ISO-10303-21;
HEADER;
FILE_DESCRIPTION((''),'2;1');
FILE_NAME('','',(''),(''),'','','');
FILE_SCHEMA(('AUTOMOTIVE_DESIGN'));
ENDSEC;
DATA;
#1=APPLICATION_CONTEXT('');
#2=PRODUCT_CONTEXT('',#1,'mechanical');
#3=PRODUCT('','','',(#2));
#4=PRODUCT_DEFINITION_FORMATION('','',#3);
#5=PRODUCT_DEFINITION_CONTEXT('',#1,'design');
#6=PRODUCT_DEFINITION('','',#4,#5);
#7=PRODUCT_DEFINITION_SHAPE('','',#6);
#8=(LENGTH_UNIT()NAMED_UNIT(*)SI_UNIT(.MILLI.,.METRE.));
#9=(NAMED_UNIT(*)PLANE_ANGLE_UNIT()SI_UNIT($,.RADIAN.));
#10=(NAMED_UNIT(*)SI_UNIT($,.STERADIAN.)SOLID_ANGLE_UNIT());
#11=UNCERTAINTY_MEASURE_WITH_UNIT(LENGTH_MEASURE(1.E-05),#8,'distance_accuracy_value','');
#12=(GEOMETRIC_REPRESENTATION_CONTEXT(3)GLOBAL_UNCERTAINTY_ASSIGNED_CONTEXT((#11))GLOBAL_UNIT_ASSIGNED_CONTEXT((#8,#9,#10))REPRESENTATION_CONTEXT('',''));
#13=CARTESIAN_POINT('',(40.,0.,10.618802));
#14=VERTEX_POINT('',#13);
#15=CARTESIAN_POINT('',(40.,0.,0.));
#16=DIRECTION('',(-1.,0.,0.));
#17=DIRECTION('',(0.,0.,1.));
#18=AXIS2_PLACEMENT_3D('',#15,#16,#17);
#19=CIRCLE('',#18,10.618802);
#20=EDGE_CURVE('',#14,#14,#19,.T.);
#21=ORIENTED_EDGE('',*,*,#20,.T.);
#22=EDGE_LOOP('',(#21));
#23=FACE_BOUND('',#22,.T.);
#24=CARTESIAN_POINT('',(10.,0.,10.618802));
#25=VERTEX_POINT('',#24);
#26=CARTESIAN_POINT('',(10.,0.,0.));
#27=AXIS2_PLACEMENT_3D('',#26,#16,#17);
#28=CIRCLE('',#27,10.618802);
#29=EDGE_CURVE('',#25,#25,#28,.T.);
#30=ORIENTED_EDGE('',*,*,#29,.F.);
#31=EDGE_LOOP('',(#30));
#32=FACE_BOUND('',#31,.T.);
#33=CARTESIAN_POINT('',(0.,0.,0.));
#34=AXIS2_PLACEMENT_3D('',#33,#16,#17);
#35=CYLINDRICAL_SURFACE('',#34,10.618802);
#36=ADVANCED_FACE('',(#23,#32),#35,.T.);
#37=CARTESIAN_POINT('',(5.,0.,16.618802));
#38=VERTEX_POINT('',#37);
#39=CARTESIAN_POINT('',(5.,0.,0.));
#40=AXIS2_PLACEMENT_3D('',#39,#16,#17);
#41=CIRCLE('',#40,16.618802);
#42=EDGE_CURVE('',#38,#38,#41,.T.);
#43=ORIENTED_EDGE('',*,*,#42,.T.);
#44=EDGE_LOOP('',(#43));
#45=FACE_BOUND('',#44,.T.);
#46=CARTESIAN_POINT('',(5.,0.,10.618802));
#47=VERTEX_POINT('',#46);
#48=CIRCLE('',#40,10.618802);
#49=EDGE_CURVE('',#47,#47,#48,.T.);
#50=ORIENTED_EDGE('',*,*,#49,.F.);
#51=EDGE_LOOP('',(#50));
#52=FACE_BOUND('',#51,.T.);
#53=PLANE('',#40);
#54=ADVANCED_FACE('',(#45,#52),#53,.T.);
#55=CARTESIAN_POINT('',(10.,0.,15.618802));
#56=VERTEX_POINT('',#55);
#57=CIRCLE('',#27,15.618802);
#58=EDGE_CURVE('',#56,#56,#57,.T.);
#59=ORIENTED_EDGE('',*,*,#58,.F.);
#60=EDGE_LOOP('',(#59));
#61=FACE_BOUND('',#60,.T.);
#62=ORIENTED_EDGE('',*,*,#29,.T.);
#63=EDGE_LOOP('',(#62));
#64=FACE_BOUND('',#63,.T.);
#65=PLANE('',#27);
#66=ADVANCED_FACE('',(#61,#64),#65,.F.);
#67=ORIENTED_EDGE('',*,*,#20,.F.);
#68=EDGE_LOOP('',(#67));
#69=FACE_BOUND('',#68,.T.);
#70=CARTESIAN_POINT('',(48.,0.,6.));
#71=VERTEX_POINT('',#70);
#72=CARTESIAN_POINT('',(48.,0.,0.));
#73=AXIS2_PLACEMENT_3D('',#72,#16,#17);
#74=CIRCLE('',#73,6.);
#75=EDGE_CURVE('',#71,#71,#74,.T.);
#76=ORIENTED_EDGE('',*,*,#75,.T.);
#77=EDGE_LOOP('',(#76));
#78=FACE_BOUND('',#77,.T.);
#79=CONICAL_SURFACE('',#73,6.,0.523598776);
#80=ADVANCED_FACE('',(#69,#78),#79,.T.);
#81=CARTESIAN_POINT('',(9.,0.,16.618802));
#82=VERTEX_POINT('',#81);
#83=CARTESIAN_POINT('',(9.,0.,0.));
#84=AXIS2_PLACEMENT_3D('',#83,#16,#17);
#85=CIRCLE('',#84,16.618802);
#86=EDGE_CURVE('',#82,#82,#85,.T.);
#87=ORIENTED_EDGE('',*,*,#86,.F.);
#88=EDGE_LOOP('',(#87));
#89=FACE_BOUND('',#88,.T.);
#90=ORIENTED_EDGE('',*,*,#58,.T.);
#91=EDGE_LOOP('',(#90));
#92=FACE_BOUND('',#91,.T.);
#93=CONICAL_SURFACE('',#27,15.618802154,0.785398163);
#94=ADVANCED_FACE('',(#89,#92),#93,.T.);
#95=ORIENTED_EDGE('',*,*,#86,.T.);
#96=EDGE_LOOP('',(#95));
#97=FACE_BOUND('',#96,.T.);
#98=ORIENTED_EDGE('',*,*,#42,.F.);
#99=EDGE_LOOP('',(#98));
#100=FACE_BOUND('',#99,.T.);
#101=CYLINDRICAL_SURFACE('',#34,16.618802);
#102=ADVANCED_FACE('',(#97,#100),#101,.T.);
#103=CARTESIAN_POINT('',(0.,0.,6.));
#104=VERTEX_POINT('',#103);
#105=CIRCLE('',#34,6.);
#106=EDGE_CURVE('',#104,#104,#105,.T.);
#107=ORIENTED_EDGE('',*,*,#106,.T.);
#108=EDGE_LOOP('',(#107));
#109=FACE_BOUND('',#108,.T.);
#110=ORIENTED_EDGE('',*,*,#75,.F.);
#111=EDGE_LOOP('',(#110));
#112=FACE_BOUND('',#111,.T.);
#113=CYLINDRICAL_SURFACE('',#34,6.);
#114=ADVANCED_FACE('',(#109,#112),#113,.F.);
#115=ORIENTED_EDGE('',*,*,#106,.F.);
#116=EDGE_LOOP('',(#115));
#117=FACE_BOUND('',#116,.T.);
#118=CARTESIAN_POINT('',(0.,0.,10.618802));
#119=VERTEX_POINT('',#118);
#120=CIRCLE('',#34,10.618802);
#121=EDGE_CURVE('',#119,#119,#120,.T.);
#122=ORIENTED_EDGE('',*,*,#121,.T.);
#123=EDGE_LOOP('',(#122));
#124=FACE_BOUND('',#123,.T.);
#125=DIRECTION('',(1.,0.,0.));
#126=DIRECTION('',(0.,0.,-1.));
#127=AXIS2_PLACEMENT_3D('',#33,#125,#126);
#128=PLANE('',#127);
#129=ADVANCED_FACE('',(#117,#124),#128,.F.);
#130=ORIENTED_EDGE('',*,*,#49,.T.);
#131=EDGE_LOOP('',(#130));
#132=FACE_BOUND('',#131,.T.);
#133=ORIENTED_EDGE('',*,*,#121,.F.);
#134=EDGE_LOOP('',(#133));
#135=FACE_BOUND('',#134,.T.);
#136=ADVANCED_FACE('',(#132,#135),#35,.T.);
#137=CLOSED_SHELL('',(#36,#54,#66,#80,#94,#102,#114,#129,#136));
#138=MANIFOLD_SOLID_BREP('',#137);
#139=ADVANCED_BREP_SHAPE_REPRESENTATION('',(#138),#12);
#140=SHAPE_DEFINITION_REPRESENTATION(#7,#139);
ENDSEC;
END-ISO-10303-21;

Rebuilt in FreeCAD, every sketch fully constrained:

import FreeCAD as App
import Part
import Sketcher
Q = App.Units.Quantity


def add_polygon(sketch, points):
    """Adds a closed chain of lines whose ends are joined by coincident constraints."""
    first, n = sketch.GeometryCount, len(points)
    for a, b in zip(points, points[1:] + points[:1]):
        sketch.addGeometry(Part.LineSegment(App.Vector(*a, 0), App.Vector(*b, 0)), False)
    for i in range(n):
        sketch.addConstraint(Sketcher.Constraint("Coincident", first + i, 2, first + (i + 1) % n, 1))

doc = App.newDocument("Part")
body = doc.addObject("PartDesign::Body", "Body")

sketch1 = body.newObject("Sketcher::SketchObject", "Sketch")
sketch1.AttachmentSupport = (doc.getObject("XY_Plane"), [""])
sketch1.MapMode = "FlatFace"
add_polygon(sketch1, [(10, 10.618802), (10, 15.618802), (9, 16.618802), (5, 16.618802), (5, 10.618802), (0, 10.618802), (0, 6), (48, 6), (40, 10.618802)])
sketch1.addConstraint([
    Sketcher.Constraint("Vertical", 0),
    Sketcher.Constraint("Horizontal", 2),
    Sketcher.Constraint("Vertical", 3),
    Sketcher.Constraint("Horizontal", 4),
    Sketcher.Constraint("Vertical", 5),
    Sketcher.Constraint("Horizontal", 6),
    Sketcher.Constraint("Horizontal", 8),
    Sketcher.Constraint("PointOnObject", 4, 2, -2),
    Sketcher.Constraint("Horizontal", 4, 2, 7, 2),
    Sketcher.Constraint("Equal", 4, 0),
    Sketcher.Constraint("DistanceX", 2, 2, 2, 1, Q("4 mm")),
    Sketcher.Constraint("DistanceX", 4, 2, 4, 1, Q("5 mm")),
    Sketcher.Constraint("DistanceX", 6, 1, 6, 2, Q("48 mm")),
    Sketcher.Constraint("DistanceX", 8, 2, 8, 1, Q("30 mm")),
    Sketcher.Constraint("DistanceY", 3, 2, 3, 1, Q("6 mm")),
    Sketcher.Constraint("Angle", 1, Q("135 deg")),
    Sketcher.Constraint("Angle", 7, Q("150 deg")),
    Sketcher.Constraint("DistanceY", -1, 1, 5, 2, Q("6 mm")),
])
revolution = body.newObject("PartDesign::Revolution", "Revolution")
revolution.Profile = sketch1
revolution.ReferenceAxis = (sketch1, ["H_Axis"])
revolution.Angle = 360

doc.recompute()
